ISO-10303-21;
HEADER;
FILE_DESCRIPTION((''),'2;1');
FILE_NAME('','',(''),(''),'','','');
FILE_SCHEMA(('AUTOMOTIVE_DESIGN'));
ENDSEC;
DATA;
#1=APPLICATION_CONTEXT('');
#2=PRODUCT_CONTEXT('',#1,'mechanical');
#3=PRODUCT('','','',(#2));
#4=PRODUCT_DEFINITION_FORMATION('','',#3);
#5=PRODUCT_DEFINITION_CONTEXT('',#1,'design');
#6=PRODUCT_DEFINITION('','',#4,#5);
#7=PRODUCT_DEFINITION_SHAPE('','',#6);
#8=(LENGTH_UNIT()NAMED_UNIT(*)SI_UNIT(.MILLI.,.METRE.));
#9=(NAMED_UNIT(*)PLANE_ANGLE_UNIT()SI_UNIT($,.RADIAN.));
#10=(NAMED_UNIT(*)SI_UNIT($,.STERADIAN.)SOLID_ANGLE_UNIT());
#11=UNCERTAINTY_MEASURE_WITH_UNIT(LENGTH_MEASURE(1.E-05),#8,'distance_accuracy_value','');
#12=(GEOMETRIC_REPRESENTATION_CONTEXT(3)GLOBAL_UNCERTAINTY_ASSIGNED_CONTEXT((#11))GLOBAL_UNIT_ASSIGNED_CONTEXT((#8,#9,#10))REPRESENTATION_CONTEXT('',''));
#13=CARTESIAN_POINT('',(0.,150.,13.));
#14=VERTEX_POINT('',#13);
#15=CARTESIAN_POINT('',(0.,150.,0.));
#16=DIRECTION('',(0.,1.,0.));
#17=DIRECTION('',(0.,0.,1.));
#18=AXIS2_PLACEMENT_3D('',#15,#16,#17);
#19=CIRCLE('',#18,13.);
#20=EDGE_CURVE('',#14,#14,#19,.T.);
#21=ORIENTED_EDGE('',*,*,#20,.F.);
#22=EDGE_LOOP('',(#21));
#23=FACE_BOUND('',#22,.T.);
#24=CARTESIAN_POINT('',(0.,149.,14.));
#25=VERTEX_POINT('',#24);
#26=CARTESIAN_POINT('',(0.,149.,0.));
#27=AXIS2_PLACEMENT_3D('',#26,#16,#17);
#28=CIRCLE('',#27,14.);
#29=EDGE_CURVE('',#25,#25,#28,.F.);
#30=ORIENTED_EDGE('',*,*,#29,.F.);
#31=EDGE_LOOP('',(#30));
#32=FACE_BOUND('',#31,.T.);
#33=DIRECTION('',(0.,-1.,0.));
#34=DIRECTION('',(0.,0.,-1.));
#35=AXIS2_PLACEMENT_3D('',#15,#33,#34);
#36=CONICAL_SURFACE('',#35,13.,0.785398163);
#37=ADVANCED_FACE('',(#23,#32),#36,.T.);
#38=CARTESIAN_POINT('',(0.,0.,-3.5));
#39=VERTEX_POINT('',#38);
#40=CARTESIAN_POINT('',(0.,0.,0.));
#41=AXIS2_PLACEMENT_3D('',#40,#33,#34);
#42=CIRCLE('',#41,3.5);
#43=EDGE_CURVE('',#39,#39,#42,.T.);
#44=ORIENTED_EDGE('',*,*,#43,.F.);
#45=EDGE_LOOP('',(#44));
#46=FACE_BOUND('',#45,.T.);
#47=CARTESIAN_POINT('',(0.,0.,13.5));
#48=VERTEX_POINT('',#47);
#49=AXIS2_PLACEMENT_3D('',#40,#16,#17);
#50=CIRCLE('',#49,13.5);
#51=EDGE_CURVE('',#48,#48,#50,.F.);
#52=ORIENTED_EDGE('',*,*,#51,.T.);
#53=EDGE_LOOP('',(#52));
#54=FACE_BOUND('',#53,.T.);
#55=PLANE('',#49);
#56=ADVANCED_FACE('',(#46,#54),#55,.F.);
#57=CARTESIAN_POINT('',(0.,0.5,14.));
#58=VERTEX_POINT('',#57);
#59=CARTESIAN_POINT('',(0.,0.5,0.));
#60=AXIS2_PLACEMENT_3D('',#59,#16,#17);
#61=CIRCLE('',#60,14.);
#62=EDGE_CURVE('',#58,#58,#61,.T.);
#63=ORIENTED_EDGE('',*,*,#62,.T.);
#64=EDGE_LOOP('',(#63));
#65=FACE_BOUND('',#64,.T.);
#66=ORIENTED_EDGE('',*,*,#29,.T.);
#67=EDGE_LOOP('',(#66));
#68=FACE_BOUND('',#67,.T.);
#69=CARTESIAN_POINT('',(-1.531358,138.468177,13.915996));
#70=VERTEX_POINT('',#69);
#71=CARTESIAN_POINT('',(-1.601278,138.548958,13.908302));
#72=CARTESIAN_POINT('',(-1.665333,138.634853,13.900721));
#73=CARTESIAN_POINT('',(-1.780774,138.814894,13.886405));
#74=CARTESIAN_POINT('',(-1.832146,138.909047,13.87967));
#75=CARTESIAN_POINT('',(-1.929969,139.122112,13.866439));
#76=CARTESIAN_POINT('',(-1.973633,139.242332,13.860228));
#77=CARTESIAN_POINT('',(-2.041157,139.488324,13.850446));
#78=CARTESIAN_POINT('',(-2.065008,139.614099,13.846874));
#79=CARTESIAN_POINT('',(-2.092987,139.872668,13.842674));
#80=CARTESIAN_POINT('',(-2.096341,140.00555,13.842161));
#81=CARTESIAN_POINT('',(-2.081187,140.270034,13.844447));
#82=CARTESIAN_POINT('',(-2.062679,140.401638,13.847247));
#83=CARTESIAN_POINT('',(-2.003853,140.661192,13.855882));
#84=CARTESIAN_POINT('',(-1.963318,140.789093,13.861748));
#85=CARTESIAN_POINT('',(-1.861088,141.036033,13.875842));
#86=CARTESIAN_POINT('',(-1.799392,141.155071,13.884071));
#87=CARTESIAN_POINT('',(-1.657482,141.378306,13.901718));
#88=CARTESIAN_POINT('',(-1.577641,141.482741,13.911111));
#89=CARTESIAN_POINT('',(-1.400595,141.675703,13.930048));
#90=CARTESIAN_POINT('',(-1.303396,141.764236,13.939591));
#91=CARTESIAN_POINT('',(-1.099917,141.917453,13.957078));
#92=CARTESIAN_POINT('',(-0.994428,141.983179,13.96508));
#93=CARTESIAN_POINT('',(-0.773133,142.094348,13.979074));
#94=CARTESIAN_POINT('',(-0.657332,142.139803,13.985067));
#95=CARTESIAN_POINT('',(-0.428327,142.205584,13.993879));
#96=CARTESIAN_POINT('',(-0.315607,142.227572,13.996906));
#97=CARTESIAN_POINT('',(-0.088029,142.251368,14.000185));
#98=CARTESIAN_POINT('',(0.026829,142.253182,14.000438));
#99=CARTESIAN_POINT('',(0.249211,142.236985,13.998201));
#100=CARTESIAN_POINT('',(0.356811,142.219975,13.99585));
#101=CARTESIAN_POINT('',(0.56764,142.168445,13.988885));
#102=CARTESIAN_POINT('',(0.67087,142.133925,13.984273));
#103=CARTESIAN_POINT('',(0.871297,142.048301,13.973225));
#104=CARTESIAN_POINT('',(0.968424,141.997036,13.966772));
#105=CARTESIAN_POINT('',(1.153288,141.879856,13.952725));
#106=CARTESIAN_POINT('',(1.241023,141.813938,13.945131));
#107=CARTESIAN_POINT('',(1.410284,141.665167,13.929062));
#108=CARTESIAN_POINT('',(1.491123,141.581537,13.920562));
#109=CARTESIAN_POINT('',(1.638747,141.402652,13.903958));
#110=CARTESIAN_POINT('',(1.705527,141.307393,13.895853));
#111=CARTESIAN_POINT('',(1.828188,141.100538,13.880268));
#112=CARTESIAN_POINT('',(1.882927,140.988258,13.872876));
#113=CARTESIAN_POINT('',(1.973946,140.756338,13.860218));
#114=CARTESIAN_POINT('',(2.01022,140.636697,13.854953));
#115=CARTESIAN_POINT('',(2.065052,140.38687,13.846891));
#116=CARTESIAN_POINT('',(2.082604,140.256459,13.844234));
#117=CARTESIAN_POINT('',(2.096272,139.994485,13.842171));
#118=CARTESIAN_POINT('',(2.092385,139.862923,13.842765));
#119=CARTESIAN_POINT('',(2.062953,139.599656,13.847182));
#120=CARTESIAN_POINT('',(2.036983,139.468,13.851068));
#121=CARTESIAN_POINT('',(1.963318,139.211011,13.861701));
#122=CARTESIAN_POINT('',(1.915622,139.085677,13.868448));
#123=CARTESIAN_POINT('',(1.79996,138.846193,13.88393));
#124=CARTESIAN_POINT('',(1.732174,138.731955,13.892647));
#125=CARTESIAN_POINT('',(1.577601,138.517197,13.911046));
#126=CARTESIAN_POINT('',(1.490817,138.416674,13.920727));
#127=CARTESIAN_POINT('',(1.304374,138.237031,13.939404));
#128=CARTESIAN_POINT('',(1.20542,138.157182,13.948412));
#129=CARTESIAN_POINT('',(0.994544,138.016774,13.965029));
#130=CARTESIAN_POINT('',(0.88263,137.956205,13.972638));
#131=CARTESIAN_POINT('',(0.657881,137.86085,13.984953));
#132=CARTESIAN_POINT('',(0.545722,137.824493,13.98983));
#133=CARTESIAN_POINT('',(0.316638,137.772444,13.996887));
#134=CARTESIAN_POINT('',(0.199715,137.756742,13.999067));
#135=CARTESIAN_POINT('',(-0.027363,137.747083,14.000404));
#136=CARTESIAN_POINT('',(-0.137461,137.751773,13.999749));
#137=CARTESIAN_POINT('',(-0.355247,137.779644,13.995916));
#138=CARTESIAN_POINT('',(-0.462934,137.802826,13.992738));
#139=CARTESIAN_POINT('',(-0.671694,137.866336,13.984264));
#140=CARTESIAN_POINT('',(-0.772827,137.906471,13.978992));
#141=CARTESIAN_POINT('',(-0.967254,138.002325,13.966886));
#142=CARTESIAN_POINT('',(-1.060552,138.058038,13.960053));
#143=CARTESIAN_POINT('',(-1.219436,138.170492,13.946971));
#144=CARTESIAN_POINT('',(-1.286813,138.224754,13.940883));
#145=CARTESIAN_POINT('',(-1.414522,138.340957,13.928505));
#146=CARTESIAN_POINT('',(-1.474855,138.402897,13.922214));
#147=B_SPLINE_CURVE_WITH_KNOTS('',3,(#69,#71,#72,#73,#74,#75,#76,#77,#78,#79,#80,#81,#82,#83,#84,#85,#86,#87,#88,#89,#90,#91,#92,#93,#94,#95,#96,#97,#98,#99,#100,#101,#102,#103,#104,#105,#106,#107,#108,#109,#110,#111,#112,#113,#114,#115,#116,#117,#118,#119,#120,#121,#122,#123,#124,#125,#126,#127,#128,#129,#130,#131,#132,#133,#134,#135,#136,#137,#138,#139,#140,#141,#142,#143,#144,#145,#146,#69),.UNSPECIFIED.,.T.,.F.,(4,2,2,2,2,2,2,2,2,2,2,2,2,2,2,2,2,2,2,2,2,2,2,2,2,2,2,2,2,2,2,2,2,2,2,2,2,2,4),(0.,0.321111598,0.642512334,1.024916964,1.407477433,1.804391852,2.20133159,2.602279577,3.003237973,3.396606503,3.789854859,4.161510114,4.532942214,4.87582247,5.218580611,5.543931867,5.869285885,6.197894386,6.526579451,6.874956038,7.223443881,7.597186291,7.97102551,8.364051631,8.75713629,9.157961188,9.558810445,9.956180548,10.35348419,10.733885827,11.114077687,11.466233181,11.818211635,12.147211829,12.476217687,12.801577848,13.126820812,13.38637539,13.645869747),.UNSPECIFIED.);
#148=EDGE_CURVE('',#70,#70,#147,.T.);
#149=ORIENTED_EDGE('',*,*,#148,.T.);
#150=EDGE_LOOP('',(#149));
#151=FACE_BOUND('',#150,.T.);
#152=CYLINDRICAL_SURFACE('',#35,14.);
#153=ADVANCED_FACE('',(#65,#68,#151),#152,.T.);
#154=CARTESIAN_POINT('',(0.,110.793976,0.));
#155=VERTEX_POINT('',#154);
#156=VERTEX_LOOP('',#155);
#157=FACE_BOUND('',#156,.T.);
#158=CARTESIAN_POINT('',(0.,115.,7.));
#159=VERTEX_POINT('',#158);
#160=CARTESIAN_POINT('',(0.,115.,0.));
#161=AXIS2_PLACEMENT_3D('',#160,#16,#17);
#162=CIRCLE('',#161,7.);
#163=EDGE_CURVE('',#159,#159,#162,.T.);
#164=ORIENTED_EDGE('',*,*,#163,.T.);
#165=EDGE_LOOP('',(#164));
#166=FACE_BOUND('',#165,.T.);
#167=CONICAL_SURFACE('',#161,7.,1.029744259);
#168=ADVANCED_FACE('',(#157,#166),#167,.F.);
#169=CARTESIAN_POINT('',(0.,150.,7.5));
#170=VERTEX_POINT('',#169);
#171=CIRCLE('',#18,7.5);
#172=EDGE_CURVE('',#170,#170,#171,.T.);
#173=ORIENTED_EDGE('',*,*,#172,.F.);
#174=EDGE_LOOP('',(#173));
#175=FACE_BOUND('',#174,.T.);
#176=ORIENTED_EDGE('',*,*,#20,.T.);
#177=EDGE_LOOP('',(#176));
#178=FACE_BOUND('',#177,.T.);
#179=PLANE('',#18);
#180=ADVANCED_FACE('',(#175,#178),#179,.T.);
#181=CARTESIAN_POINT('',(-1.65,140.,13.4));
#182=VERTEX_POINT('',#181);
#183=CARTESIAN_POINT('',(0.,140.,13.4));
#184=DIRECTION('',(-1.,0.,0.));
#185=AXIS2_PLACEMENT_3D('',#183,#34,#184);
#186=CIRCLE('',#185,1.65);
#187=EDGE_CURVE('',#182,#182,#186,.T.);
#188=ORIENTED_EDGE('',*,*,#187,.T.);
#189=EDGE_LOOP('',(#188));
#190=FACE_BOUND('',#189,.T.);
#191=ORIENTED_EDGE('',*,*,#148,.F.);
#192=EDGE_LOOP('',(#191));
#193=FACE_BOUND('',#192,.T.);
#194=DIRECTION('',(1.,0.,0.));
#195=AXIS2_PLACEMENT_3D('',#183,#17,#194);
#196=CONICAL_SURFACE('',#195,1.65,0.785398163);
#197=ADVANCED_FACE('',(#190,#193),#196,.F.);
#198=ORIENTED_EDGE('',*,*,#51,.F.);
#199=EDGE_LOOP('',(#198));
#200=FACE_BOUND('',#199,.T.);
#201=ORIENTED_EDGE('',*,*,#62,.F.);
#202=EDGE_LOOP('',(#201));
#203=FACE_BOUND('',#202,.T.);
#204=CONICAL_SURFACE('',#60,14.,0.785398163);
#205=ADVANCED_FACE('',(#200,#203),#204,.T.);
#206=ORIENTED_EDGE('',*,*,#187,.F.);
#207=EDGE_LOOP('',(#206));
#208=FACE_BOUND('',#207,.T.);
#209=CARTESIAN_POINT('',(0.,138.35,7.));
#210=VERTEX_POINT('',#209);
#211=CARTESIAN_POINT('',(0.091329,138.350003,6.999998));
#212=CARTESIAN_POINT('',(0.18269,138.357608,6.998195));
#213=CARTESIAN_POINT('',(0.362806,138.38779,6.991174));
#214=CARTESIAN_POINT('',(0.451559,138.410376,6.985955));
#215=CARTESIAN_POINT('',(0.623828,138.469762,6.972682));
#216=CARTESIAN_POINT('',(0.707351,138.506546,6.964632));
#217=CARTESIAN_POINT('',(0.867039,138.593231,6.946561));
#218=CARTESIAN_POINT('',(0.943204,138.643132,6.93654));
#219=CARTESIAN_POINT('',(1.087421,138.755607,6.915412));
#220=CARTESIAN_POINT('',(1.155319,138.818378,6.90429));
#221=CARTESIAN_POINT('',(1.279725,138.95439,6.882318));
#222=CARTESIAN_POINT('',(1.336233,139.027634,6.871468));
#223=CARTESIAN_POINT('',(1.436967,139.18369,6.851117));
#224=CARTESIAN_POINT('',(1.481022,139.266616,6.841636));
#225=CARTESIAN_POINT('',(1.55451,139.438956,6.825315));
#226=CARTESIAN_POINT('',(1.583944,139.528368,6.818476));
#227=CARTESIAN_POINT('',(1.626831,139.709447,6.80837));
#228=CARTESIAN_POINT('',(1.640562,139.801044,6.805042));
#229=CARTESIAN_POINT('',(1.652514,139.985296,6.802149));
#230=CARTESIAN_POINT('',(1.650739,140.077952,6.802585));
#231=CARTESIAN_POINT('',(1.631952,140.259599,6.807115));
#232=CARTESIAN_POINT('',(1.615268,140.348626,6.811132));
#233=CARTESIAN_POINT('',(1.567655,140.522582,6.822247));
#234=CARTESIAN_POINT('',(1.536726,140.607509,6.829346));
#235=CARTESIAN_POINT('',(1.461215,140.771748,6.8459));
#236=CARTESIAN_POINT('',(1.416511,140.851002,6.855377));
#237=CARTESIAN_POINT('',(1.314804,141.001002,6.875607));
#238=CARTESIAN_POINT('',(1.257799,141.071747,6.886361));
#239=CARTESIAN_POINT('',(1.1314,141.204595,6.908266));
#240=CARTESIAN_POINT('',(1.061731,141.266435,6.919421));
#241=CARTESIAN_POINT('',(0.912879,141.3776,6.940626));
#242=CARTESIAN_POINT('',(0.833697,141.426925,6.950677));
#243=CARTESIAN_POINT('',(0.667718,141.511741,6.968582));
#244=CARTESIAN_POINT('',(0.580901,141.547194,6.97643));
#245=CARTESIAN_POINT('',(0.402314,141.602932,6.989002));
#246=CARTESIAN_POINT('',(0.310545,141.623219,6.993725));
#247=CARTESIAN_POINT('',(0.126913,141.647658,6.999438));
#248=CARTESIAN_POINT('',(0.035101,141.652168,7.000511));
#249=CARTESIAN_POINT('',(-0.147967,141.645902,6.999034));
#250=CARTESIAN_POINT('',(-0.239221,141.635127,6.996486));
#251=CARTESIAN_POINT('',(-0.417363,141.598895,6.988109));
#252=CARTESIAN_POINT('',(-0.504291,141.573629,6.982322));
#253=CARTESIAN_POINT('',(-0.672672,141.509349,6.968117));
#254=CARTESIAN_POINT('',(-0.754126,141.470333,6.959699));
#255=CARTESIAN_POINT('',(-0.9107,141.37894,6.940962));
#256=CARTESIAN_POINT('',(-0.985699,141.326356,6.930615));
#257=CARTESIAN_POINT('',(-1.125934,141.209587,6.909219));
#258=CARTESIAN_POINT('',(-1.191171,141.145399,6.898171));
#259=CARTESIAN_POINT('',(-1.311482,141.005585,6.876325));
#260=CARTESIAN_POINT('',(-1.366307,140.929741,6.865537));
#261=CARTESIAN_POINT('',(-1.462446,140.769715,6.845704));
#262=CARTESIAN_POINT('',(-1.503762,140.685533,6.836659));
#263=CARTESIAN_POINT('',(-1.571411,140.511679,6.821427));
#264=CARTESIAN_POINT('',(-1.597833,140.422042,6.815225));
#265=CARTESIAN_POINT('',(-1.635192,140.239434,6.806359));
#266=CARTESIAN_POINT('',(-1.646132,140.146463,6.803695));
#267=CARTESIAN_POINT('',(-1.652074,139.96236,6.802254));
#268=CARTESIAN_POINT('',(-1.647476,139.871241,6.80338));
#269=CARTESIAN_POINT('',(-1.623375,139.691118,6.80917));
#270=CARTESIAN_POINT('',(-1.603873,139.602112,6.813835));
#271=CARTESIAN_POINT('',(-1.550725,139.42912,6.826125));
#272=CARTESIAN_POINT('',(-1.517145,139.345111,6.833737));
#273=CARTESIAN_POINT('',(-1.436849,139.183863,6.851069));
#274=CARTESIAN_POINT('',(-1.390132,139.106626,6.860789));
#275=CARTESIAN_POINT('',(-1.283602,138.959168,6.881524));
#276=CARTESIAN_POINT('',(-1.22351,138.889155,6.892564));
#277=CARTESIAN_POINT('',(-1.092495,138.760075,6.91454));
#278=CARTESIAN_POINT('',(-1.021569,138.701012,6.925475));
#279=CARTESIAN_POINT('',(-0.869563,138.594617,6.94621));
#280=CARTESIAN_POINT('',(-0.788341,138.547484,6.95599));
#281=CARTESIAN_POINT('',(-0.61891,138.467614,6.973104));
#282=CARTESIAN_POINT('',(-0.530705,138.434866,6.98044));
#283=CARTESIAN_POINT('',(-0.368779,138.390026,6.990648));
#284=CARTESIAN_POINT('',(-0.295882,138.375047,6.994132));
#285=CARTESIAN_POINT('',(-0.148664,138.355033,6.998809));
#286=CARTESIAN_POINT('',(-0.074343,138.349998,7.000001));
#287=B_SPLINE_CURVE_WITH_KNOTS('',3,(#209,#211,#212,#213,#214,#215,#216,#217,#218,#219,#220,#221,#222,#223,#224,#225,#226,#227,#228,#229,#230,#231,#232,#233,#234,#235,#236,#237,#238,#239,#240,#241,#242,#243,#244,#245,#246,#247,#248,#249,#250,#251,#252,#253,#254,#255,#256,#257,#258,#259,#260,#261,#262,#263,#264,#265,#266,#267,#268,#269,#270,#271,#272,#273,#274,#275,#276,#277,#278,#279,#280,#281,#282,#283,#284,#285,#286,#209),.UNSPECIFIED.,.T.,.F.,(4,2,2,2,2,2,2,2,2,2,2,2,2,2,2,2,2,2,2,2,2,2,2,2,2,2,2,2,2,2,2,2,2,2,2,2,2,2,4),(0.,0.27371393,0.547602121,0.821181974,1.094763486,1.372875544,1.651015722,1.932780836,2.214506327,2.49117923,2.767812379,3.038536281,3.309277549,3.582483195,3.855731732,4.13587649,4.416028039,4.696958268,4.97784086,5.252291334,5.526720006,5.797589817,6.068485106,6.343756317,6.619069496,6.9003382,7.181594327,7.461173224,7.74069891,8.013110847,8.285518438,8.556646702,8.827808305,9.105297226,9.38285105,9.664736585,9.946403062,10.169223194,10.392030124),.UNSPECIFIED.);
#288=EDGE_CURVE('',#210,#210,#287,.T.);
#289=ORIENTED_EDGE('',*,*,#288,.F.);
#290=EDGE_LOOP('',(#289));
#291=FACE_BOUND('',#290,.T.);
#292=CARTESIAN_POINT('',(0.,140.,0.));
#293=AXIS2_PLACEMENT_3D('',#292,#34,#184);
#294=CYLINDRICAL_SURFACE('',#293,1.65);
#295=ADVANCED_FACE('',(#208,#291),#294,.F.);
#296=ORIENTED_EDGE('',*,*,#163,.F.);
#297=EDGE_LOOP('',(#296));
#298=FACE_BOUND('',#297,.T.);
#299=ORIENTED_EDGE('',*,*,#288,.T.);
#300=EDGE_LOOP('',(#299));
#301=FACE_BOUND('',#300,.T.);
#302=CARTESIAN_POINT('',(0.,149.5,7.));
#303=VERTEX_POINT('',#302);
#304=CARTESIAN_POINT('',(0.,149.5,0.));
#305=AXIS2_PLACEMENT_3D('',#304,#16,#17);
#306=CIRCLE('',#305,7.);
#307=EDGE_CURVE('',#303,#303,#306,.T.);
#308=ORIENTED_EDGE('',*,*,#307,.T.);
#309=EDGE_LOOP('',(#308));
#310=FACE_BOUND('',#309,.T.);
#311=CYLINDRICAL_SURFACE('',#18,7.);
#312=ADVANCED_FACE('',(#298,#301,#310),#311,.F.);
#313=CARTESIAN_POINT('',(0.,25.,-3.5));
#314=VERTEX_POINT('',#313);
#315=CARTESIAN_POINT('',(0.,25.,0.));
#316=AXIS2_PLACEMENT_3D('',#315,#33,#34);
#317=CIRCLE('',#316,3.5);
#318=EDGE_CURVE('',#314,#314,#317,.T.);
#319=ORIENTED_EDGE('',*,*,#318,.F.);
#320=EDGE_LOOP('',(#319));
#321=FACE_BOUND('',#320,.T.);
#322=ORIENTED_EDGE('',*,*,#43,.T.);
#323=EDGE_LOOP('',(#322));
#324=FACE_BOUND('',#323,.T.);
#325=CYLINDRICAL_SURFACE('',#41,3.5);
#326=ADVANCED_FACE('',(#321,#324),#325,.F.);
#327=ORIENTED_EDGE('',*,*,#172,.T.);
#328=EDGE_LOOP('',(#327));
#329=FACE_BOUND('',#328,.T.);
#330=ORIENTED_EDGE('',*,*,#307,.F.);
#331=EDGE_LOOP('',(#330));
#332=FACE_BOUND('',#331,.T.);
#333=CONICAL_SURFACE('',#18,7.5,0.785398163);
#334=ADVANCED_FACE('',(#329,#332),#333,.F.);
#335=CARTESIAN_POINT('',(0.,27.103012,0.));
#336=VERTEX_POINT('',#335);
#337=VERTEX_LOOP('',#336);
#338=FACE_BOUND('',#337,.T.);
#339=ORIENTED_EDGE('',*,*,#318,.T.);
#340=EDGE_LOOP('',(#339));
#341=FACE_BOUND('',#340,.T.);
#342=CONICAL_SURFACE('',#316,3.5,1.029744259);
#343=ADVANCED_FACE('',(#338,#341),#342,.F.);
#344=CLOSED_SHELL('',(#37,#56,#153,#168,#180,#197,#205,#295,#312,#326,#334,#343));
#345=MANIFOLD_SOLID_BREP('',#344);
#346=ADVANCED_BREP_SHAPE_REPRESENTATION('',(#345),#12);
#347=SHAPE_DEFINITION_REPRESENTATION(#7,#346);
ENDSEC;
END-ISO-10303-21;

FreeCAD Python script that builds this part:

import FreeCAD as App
import Part
import Sketcher
Q = App.Units.Quantity


def edges_at(feature, points):
    """Names of the edges that pass closest to the given points."""
    edges = feature.Shape.Edges
    near = lambda p: min(range(len(edges)), key=lambda i: edges[i].distToShape(Part.Vertex(*p))[0])
    return sorted({f"Edge{near(p) + 1}" for p in points})

doc = App.newDocument("Part")
body = doc.addObject("PartDesign::Body", "Body")

sketch1 = doc.addObject("Sketcher::SketchObject", "Sketch")
body.addObject(sketch1)
sketch1.AttachmentSupport = (doc.XZ_Plane, [""])
sketch1.MapMode = "FlatFace"
sketch1.addGeometry(Part.Circle(App.Vector(0, 0, 0), App.Vector(0, 0, 1), 14), False)
sketch1.addConstraint([
    Sketcher.Constraint("Coincident", 0, 3, -1, 1),
    Sketcher.Constraint("Diameter", 0, Q("28 mm")),
])
pad1 = doc.addObject("PartDesign::Pad", "Pad")
body.addObject(pad1)
pad1.Profile = sketch1
pad1.Length = 150
pad1.Reversed = True
doc.recompute()

chamfer = doc.addObject("PartDesign::Chamfer", "Chamfer")
body.addObject(chamfer)
chamfer.Base = (pad1, edges_at(pad1, [(0, 150, -14)]))
chamfer.Size = 1

sketch2 = doc.addObject("Sketcher::SketchObject", "Sketch001")
body.addObject(sketch2)
sketch2.AttachmentSupport = (doc.XZ_Plane, [""])
sketch2.MapMode = "FlatFace"
sketch2.AttachmentOffset = App.Placement(App.Vector(0, 0, -150), App.Rotation())
sketch2.addGeometry(Part.Circle(App.Vector(0, 0, 0), App.Vector(0, 0, 1), 7), False)
sketch2.addConstraint([
    Sketcher.Constraint("Coincident", 0, 3, -1, 1),
    Sketcher.Constraint("Diameter", 0, Q("14 mm")),
])
doc.recompute()
hole = doc.addObject("PartDesign::Hole", "Hole")
body.addObject(hole)
hole.Profile = sketch2
hole.ThreadType = "None"
hole.Diameter = 14
hole.DepthType = "Dimension"
hole.Depth = 35
hole.DrillPoint = "Angled"
hole.DrillPointAngle = 118
hole.HoleCutType = "Countersink"
hole.HoleCutDiameter = 15
hole.HoleCutCountersinkAngle = 90
hole.Reversed = True
doc.recompute()

chamfer2 = doc.addObject("PartDesign::Chamfer", "Chamfer001")
body.addObject(chamfer2)
chamfer2.Base = (hole, edges_at(hole, [(0, 0, -14)]))
chamfer2.Size = 0.5

sketch3 = doc.addObject("Sketcher::SketchObject", "Sketch002")
body.addObject(sketch3)
sketch3.AttachmentSupport = (doc.XZ_Plane, [""])
sketch3.MapMode = "FlatFace"
sketch3.addGeometry(Part.Circle(App.Vector(0, 0, 0), App.Vector(0, 0, 1), 3.5), False)
sketch3.addConstraint([
    Sketcher.Constraint("Coincident", 0, 3, -1, 1),
    Sketcher.Constraint("Diameter", 0, Q("7 mm")),
])
doc.recompute()
hole2 = doc.addObject("PartDesign::Hole", "Hole001")
body.addObject(hole2)
hole2.Profile = sketch3
hole2.ThreadType = "None"
hole2.Diameter = 7
hole2.DepthType = "Dimension"
hole2.Depth = 25
hole2.DrillPoint = "Angled"
hole2.DrillPointAngle = 118

sketch4 = doc.addObject("Sketcher::SketchObject", "Sketch003")
body.addObject(sketch4)
sketch4.AttachmentSupport = (doc.YZ_Plane, [""])
sketch4.MapMode = "FlatFace"
sketch4.addGeometry([
    Part.LineSegment(App.Vector(140, 14, 0), App.Vector(140, 0, 0)),
    Part.LineSegment(App.Vector(140, 0, 0), App.Vector(141.7, 0, 0)),
    Part.LineSegment(App.Vector(141.7, 0, 0), App.Vector(141.7, 13.4, 0)),
    Part.LineSegment(App.Vector(141.7, 13.4, 0), App.Vector(142.2, 14, 0)),
    Part.LineSegment(App.Vector(142.2, 14, 0), App.Vector(140, 14, 0)),
], False)
sketch4.addGeometry(Part.LineSegment(App.Vector(140, 0, 0), App.Vector(140, 14, 0)), True)
sketch4.addConstraint([
    Sketcher.Constraint("Coincident", 0, 2, 1, 1),
    Sketcher.Constraint("Coincident", 1, 2, 2, 1),
    Sketcher.Constraint("Coincident", 2, 2, 3, 1),
    Sketcher.Constraint("Coincident", 3, 2, 4, 1),
    Sketcher.Constraint("Coincident", 4, 2, 0, 1),
    Sketcher.Constraint("Vertical", 0),
    Sketcher.Constraint("Horizontal", 1),
    Sketcher.Constraint("Vertical", 2),
    Sketcher.Constraint("Horizontal", 4),
    Sketcher.Constraint("Vertical", 5),
    Sketcher.Constraint("Coincident", 5, 1, 0, 2),
    Sketcher.Constraint("PointOnObject", 0, 2, -1),
    Sketcher.Constraint("Horizontal", 3, 2, 5, 2),
    Sketcher.Constraint("DistanceY", 0, 2, 0, 1, Q("14 mm")),
    Sketcher.Constraint("Angle", 3, Q("45 deg")),
    Sketcher.Constraint("DistanceY", 2, 1, 2, 2, Q("13.4 mm")),
    Sketcher.Constraint("DistanceX", -1, 1, 0, 2, Q("140 mm")),
    Sketcher.Constraint("DistanceX", 1, 1, 1, 2, Q("1.65 mm")),
])
groove = doc.addObject("PartDesign::Groove", "Groove")
body.addObject(groove)
groove.Profile = sketch4
groove.ReferenceAxis = (sketch4, ["Axis0"])
groove.Angle = 360

doc.recompute()
